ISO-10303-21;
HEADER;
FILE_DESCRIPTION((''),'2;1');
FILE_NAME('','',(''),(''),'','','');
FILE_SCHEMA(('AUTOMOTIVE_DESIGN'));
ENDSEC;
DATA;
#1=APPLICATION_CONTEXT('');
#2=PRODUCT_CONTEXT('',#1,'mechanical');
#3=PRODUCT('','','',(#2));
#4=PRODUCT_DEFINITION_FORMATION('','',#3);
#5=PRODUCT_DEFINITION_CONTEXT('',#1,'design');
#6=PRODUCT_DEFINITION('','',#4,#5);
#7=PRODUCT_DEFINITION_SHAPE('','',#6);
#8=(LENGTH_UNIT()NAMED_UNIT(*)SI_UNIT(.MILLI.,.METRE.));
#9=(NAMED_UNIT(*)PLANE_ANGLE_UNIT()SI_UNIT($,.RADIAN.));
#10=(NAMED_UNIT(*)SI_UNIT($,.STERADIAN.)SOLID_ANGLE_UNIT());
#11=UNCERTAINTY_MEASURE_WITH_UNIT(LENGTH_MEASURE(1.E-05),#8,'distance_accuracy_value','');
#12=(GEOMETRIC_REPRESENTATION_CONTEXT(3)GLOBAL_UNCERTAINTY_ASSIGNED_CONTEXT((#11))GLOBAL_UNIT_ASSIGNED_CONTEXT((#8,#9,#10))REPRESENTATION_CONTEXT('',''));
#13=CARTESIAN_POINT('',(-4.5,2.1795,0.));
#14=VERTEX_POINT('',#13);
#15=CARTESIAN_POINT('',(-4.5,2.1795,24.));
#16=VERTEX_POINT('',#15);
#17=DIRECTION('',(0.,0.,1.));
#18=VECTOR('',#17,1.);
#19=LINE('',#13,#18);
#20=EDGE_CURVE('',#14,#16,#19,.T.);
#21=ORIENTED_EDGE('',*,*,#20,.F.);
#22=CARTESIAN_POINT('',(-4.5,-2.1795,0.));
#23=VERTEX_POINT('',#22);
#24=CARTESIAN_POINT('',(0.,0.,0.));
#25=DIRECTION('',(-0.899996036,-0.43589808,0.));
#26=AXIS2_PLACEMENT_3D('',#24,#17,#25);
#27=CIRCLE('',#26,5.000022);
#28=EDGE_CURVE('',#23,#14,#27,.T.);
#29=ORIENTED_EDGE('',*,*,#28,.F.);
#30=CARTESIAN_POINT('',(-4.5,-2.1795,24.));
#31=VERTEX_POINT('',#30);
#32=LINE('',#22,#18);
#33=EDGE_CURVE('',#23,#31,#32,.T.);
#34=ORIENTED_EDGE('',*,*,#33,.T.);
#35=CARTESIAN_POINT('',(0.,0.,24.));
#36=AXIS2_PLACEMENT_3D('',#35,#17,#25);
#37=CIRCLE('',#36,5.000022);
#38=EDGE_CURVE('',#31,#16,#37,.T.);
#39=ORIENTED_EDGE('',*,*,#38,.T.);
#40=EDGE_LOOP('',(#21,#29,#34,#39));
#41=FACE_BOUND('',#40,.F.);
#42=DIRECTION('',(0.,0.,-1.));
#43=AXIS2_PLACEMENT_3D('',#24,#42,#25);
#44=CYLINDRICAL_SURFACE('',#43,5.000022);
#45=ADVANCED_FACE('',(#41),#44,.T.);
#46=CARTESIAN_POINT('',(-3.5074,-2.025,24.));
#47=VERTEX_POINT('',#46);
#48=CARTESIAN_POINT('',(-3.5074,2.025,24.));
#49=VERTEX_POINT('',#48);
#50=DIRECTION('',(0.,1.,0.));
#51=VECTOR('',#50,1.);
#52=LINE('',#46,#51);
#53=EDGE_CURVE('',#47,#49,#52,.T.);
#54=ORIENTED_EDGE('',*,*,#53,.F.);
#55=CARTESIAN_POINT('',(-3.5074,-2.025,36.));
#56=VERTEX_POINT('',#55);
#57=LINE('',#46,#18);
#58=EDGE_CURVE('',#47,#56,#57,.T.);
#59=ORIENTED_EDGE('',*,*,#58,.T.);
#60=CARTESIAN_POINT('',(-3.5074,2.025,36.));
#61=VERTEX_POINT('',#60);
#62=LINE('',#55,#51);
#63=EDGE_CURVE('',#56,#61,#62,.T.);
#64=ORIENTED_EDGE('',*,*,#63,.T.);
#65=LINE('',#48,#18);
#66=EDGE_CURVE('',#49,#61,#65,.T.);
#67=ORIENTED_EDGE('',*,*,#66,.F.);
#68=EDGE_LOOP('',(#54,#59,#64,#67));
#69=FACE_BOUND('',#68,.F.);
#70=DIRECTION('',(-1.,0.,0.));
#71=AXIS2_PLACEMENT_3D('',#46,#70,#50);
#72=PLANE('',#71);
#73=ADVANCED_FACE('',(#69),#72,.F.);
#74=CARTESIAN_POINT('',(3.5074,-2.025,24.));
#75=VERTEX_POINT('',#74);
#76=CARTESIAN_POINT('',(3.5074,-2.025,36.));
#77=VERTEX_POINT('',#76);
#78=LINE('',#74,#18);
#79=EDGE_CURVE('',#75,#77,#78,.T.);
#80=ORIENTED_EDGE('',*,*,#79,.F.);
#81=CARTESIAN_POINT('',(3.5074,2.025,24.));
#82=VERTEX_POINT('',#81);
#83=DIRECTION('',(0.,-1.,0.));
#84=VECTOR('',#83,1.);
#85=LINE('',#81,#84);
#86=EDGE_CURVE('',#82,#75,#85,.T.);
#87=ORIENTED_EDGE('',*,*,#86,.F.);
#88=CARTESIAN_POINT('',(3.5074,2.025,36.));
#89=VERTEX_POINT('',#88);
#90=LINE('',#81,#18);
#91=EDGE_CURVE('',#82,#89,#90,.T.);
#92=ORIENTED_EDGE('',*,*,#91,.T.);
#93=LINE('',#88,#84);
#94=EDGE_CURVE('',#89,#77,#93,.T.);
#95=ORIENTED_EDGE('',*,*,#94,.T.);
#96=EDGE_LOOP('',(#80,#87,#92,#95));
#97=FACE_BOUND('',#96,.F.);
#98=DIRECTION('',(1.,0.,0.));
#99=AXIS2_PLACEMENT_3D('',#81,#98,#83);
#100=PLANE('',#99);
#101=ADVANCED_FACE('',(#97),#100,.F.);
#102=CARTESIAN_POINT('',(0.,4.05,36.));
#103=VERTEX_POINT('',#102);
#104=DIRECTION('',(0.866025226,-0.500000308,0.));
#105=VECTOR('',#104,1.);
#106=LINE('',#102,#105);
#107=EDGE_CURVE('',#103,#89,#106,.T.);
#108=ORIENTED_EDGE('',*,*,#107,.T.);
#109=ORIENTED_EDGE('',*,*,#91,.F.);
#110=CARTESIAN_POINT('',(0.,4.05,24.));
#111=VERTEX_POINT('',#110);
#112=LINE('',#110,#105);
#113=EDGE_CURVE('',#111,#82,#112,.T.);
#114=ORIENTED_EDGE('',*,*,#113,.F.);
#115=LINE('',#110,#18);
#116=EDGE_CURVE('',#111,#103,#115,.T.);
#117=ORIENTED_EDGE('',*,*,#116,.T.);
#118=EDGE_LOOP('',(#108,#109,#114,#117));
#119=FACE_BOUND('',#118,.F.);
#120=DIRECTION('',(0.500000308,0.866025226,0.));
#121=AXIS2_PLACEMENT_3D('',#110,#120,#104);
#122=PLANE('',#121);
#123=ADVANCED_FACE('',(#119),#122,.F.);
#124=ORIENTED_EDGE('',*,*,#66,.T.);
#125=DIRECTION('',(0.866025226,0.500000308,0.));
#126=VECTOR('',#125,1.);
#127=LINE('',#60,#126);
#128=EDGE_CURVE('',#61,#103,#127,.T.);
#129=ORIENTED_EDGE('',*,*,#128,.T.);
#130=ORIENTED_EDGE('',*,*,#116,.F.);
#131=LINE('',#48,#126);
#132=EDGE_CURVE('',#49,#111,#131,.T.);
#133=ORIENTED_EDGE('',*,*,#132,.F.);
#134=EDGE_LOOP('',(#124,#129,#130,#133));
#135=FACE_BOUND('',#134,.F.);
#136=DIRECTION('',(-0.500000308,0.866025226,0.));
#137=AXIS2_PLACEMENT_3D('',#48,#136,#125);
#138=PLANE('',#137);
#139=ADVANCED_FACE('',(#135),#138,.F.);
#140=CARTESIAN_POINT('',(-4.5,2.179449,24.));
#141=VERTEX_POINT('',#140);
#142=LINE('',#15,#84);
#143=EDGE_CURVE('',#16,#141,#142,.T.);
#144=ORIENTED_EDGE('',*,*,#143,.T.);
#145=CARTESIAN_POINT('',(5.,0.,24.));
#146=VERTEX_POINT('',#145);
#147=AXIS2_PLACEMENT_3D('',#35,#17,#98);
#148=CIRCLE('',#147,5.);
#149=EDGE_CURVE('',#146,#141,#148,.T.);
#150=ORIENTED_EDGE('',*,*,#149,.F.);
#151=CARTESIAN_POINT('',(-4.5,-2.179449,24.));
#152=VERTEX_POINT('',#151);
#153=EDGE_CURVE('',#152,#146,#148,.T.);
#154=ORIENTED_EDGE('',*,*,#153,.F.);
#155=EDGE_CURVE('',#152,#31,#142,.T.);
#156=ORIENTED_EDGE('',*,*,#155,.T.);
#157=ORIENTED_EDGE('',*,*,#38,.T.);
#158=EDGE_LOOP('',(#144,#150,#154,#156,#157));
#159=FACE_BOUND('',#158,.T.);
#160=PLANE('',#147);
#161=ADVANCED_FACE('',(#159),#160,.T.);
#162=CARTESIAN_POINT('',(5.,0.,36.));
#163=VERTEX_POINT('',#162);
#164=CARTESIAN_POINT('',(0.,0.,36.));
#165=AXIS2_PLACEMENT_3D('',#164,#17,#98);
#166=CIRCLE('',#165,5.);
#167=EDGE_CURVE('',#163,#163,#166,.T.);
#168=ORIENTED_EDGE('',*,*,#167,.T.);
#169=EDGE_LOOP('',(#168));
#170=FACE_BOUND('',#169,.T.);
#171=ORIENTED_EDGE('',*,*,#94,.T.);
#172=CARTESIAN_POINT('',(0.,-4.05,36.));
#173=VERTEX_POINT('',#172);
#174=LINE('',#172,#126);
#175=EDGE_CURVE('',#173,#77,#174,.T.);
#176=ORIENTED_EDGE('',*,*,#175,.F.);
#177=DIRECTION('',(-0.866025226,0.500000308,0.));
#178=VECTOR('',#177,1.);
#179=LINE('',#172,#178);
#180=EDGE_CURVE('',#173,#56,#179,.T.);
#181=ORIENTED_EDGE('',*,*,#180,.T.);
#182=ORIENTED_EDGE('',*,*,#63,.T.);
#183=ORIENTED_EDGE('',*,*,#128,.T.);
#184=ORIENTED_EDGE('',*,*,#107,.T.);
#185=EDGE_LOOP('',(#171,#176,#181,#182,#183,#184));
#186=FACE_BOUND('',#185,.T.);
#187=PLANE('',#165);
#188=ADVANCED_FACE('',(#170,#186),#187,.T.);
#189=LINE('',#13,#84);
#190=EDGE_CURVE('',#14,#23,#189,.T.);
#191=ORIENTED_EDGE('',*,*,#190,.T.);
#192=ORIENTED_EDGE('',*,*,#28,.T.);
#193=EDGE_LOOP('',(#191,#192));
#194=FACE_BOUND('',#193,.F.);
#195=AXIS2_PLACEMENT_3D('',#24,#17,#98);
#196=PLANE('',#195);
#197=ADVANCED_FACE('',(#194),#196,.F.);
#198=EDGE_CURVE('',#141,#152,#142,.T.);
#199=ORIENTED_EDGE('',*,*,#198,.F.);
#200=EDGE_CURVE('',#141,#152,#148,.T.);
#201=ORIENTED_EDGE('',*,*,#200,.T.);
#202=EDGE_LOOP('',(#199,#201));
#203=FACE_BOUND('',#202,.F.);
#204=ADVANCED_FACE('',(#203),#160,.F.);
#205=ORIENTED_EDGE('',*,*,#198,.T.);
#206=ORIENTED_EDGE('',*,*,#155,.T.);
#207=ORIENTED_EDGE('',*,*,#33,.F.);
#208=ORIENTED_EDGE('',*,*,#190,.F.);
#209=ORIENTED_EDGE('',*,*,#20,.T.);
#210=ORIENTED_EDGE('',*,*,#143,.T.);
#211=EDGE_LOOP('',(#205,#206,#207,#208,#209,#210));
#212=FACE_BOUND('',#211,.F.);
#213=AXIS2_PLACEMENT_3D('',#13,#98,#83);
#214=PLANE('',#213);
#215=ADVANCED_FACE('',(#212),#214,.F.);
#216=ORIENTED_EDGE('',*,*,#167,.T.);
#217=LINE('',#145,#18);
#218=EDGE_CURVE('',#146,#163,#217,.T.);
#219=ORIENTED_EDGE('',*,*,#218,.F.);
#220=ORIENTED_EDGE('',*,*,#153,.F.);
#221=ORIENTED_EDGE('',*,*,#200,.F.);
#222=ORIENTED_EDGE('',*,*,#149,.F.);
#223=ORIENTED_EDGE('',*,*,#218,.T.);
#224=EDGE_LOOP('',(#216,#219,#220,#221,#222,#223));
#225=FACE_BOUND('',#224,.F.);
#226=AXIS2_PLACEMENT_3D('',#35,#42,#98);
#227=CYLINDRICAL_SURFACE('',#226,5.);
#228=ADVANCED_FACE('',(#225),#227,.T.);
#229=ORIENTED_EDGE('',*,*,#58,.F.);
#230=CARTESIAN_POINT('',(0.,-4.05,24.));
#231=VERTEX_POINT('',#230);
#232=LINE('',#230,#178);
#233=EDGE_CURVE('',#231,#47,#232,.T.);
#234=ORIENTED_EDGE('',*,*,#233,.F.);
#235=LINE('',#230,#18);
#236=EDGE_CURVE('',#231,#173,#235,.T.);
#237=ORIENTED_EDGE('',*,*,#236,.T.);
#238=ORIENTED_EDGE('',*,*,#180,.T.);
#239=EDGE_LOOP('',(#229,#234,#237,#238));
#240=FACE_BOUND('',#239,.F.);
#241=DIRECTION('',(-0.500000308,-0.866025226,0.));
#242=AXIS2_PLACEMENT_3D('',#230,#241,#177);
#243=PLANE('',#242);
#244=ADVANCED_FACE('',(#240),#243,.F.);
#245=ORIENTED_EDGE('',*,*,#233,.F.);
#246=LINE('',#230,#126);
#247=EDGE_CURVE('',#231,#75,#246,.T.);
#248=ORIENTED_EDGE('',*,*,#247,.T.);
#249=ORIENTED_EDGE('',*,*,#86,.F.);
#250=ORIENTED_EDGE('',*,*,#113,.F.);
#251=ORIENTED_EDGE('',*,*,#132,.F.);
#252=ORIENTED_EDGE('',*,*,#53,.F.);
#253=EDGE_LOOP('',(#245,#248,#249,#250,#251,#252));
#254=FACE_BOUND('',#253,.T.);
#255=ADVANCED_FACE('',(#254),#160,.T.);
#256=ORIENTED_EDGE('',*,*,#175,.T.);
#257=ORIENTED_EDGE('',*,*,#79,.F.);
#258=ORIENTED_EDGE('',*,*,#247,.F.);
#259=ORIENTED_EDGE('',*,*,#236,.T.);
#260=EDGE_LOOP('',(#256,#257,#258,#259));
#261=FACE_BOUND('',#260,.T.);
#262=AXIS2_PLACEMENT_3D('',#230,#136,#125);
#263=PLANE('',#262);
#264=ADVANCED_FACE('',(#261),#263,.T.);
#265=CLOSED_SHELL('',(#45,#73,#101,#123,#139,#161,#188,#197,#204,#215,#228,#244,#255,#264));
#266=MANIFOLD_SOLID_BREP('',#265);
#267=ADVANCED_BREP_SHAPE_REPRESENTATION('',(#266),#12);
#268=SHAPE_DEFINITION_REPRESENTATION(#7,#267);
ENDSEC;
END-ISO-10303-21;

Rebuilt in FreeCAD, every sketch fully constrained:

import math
import FreeCAD as App
import Part
import Sketcher
Q = App.Units.Quantity


def add_polygon(sketch, points):
    """Adds a closed chain of lines whose ends are joined by coincident constraints."""
    first, n = sketch.GeometryCount, len(points)
    for a, b in zip(points, points[1:] + points[:1]):
        sketch.addGeometry(Part.LineSegment(App.Vector(*a, 0), App.Vector(*b, 0)), False)
    for i in range(n):
        sketch.addConstraint(Sketcher.Constraint("Coincident", first + i, 2, first + (i + 1) % n, 1))

doc = App.newDocument("Part")
body = doc.addObject("PartDesign::Body", "Body")

# Sketch on XY plane
sketch1 = doc.addObject("Sketcher::SketchObject", "Sketch")
body.addObject(sketch1)
sketch1.AttachmentSupport = (doc.XY_Plane, [""])
sketch1.MapMode = "FlatFace"
sketch1.addGeometry([
    Part.LineSegment(App.Vector(-4.5, 2.2, 0), App.Vector(-4.5, -2.2, 0)),
    Part.ArcOfCircle(Part.Circle(App.Vector(0, 0, 0), App.Vector(0, 0, 1), 5), math.radians(-154), math.radians(154)),
], False)
sketch1.addConstraint([
    Sketcher.Constraint("Coincident", 0, 1, 1, 2),
    Sketcher.Constraint("Coincident", 1, 1, 0, 2),
    Sketcher.Constraint("Vertical", 0),
    Sketcher.Constraint("Coincident", 1, 3, -1, 1),
    Sketcher.Constraint("Radius", 1, Q("5 mm")),
    Sketcher.Constraint("DistanceY", 0, 2, 0, 1, Q("4.359 mm")),
])
pad1 = doc.addObject("PartDesign::Pad", "Pad")
body.addObject(pad1)
pad1.Profile = sketch1
pad1.Length = 24

# Sketch on XY plane
sketch2 = doc.addObject("Sketcher::SketchObject", "Sketch001")
body.addObject(sketch2)
sketch2.AttachmentSupport = (doc.XY_Plane, [""])
sketch2.MapMode = "FlatFace"
sketch2.AttachmentOffset = App.Placement(App.Vector(0, 0, 24), App.Rotation())
sketch2.addGeometry(Part.Circle(App.Vector(0, 0, 0), App.Vector(0, 0, 1), 5), False)  # 0
add_polygon(sketch2, [(-3.5, 2), (0, 4), (3.5, 2), (3.5, -2), (0, -4), (-3.5, -2)])  # lines 1-6
sketch2.addConstraint([
    Sketcher.Constraint("Vertical", 3),
    Sketcher.Constraint("Vertical", 6),
    Sketcher.Constraint("Coincident", 0, 3, -1, 1),
    Sketcher.Constraint("Symmetric", 1, 2, 4, 2, -1, 1),
    Sketcher.Constraint("Symmetric", 2, 2, 5, 2, -1, 1),
    Sketcher.Constraint("PointOnObject", 1, 2, -2),
    Sketcher.Constraint("Parallel", 1, 4),
    Sketcher.Constraint("Horizontal", 3, 2, 5, 2),
    Sketcher.Constraint("Diameter", 0, Q("10 mm")),
    Sketcher.Constraint("DistanceY", 4, 2, 1, 2, Q("8.1 mm")),
    Sketcher.Constraint("Angle", 1, Q("30 deg")),
    Sketcher.Constraint("DistanceY", 3, 2, 3, 1, Q("4.05 mm")),
])
pad2 = doc.addObject("PartDesign::Pad", "Pad001")
body.addObject(pad2)
pad2.Profile = sketch2
pad2.Length = 12

doc.recompute()
